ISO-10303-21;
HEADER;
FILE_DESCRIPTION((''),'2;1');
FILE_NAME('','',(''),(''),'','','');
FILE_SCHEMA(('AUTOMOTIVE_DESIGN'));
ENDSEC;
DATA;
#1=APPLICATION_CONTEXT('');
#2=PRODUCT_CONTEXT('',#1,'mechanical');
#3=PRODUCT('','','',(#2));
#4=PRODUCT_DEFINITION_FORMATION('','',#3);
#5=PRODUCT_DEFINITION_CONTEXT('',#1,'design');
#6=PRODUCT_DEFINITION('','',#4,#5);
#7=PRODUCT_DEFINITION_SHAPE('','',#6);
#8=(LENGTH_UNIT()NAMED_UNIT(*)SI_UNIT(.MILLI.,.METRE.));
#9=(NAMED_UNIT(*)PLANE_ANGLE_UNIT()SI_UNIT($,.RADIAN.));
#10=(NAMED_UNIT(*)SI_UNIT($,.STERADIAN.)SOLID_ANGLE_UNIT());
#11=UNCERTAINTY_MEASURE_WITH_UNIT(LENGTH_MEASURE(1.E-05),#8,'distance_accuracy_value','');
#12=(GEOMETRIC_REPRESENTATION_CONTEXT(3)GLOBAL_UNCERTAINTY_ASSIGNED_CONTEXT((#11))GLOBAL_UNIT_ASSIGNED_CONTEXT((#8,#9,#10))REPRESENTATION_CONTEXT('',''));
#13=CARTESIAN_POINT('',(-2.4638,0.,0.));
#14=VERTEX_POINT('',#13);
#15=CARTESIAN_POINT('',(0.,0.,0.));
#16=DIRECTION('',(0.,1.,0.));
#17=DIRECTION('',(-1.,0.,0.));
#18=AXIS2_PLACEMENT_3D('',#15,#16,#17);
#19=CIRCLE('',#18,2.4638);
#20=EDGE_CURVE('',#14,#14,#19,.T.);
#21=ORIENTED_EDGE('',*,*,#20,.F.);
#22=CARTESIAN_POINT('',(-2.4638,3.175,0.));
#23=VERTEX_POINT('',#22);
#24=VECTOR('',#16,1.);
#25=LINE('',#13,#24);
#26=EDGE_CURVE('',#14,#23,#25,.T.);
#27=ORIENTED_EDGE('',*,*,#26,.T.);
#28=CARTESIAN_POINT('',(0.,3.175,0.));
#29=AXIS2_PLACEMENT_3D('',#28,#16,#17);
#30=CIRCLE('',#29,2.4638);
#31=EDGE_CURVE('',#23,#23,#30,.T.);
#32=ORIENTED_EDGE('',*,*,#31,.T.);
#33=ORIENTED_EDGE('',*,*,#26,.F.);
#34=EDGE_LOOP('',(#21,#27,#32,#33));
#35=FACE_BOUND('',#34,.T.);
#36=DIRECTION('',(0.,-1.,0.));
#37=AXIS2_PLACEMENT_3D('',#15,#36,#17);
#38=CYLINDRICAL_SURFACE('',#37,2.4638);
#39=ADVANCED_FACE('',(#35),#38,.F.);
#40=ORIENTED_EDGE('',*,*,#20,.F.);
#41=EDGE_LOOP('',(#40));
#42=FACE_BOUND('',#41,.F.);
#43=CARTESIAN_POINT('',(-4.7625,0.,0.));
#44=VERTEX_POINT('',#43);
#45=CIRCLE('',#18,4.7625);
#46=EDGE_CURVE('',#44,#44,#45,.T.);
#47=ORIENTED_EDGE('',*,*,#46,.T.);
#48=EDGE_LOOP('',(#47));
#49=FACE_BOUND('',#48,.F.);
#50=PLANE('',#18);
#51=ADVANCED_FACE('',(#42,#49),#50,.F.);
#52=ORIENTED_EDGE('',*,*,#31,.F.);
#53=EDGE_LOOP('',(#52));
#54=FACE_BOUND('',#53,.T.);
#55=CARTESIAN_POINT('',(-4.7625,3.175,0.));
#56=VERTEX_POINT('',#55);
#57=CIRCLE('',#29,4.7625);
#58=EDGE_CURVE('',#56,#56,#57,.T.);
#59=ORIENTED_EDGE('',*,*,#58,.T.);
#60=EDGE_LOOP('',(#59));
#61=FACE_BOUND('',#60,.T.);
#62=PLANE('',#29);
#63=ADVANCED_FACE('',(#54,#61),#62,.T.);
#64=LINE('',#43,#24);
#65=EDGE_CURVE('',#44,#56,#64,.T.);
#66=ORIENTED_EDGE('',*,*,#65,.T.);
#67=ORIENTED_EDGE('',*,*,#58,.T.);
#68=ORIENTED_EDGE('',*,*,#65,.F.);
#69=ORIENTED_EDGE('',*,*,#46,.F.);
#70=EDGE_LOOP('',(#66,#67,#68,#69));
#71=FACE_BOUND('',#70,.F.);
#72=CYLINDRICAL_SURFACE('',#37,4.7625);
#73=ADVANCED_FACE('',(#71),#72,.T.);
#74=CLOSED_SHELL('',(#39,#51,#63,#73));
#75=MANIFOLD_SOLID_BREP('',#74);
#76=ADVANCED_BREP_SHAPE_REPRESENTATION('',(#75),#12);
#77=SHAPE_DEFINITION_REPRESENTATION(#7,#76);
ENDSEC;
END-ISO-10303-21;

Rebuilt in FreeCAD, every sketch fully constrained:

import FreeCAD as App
import Part
import Sketcher
from FreeCAD import Vector
Q = App.Units.Quantity

doc = App.newDocument("Part")
params = doc.addObject("Spreadsheet::Sheet", "Params")
for row, (alias, value) in enumerate([
    ("sketch1_diameter", "0.375 in"),
    ("sketch1_diameter2", "0.194 in"),
    ("pad1_length", "0.125 in"),
], start=1):
    params.set(f"A{row}", alias)
    params.set(f"B{row}", "=" + value)
    params.setAlias(f"B{row}", alias)

body = doc.addObject("PartDesign::Body", "Body")

sketch1 = body.newObject("Sketcher::SketchObject", "Sketch")
sketch1.AttachmentSupport = (doc.getObject("XZ_Plane"), [""])
sketch1.MapMode = "FlatFace"
sketch1.addGeometry(Part.Circle(Vector(0, 0, 0), Vector(0, 0, 1), 4.8), False)
sketch1.addGeometry(Part.Circle(Vector(0, 0, 0), Vector(0, 0, 1), 2.5), False)
sketch1.addConstraint(Sketcher.Constraint("Coincident", 0, 3, -1, 1))
sketch1.addConstraint(Sketcher.Constraint("Coincident", 1, 3, -1, 1))
sketch1.addConstraint(Sketcher.Constraint("Diameter", 0, Q("0.375 in")))
sketch1.addConstraint(Sketcher.Constraint("Diameter", 1, Q("0.194 in")))
sketch1.setExpression("Constraints[2]", "Params.sketch1_diameter")
sketch1.setExpression("Constraints[3]", "Params.sketch1_diameter2")
pad1 = body.newObject("PartDesign::Pad", "Pad")
pad1.Profile = sketch1
pad1.setExpression("Length", "Params.pad1_length")
pad1.Reversed = True

doc.recompute()
